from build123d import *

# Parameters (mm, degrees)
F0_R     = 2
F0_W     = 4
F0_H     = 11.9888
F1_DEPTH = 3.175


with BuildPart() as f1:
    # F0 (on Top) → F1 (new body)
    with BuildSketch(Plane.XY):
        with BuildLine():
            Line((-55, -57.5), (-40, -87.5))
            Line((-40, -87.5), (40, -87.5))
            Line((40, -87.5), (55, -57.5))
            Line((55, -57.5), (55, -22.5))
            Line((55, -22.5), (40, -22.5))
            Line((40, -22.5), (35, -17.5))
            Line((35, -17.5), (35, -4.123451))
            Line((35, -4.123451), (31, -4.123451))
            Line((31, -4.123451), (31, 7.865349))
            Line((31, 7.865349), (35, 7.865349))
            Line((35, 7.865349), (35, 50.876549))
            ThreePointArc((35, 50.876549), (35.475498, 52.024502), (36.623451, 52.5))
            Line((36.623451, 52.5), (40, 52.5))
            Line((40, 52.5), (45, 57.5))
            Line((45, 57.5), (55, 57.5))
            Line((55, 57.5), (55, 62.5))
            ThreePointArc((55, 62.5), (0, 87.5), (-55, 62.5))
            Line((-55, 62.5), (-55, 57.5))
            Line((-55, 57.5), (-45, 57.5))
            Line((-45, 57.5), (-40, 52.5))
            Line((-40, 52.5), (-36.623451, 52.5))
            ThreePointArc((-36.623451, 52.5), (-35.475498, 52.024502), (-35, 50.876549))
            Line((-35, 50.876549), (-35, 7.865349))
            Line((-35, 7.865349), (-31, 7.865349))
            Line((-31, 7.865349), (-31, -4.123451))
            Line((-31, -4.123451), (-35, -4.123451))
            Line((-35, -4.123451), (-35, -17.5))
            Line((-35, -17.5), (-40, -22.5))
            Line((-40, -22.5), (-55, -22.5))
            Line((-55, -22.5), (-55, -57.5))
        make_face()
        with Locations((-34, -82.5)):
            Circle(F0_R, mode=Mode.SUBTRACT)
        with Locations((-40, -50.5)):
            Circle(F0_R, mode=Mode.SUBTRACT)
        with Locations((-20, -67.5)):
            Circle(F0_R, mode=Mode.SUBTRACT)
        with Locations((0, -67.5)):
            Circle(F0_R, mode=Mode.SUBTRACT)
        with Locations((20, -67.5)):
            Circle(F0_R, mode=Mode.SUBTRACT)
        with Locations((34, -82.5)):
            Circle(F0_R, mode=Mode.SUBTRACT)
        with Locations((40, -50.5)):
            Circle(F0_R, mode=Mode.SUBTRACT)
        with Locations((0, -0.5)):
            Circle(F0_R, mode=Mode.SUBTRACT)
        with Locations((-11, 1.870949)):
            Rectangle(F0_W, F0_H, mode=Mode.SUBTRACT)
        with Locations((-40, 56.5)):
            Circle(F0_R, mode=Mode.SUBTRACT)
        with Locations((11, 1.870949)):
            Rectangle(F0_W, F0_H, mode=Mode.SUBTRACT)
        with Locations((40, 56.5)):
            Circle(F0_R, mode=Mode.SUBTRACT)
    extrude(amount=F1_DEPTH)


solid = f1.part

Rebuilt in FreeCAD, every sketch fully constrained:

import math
import FreeCAD as App
import Part
import Sketcher
from FreeCAD import Vector
Q = App.Units.Quantity

doc = App.newDocument("Part")
body = doc.addObject("PartDesign::Body", "Body")

sketch1 = body.newObject("Sketcher::SketchObject", "Sketch")
sketch1.AttachmentSupport = (doc.getObject("XY_Plane"), [""])
sketch1.MapMode = "FlatFace"
sketch1.addGeometry(Part.LineSegment(Vector(-55, -57.5, 0), Vector(-40, -87.5, 0)), False)
sketch1.addGeometry(Part.LineSegment(Vector(-40, -87.5, 0), Vector(40, -87.5, 0)), False)
sketch1.addGeometry(Part.LineSegment(Vector(40, -87.5, 0), Vector(55, -57.5, 0)), False)
sketch1.addGeometry(Part.LineSegment(Vector(55, -57.5, 0), Vector(55, -22.5, 0)), False)
sketch1.addGeometry(Part.LineSegment(Vector(55, -22.5, 0), Vector(40, -22.5, 0)), False)
sketch1.addGeometry(Part.LineSegment(Vector(40, -22.5, 0), Vector(35, -17.5, 0)), False)
sketch1.addGeometry(Part.LineSegment(Vector(35, -17.5, 0), Vector(35, -4.123451, 0)), False)
sketch1.addGeometry(Part.LineSegment(Vector(35, -4.123451, 0), Vector(31, -4.123451, 0)), False)
sketch1.addGeometry(Part.LineSegment(Vector(31, -4.123451, 0), Vector(31, 7.865349, 0)), False)
sketch1.addGeometry(Part.LineSegment(Vector(31, 7.865349, 0), Vector(35, 7.865349, 0)), False)
sketch1.addGeometry(Part.LineSegment(Vector(35, 7.865349, 0), Vector(35, 50.876549, 0)), False)
sketch1.addGeometry(Part.ArcOfCircle(Part.Circle(Vector(36.623452, 50.876548, 0), Vector(0, 0, 1), 1.623452), math.radians(90.000025), math.radians(179.999975)), False)
sketch1.addGeometry(Part.LineSegment(Vector(36.623451, 52.5, 0), Vector(40, 52.5, 0)), False)
sketch1.addGeometry(Part.LineSegment(Vector(40, 52.5, 0), Vector(45, 57.5, 0)), False)
sketch1.addGeometry(Part.LineSegment(Vector(45, 57.5, 0), Vector(55, 57.5, 0)), False)
sketch1.addGeometry(Part.LineSegment(Vector(55, 57.5, 0), Vector(55, 62.5, 0)), False)
sketch1.addGeometry(Part.ArcOfCircle(Part.Circle(Vector(0, 14.5, 0), Vector(0, 0, 1), 73), math.radians(41.11209), math.radians(138.88791)), False)
sketch1.addGeometry(Part.LineSegment(Vector(-55, 62.5, 0), Vector(-55, 57.5, 0)), False)
sketch1.addGeometry(Part.LineSegment(Vector(-55, 57.5, 0), Vector(-45, 57.5, 0)), False)
sketch1.addGeometry(Part.LineSegment(Vector(-45, 57.5, 0), Vector(-40, 52.5, 0)), False)
sketch1.addGeometry(Part.LineSegment(Vector(-40, 52.5, 0), Vector(-36.623451, 52.5, 0)), False)
sketch1.addGeometry(Part.ArcOfCircle(Part.Circle(Vector(-36.623452, 50.876548, 0), Vector(0, 0, 1), 1.623452), math.radians(0.000025), math.radians(89.999975)), False)
sketch1.addGeometry(Part.LineSegment(Vector(-35, 50.876549, 0), Vector(-35, 7.865349, 0)), False)
sketch1.addGeometry(Part.LineSegment(Vector(-35, 7.865349, 0), Vector(-31, 7.865349, 0)), False)
sketch1.addGeometry(Part.LineSegment(Vector(-31, 7.865349, 0), Vector(-31, -4.123451, 0)), False)
sketch1.addGeometry(Part.LineSegment(Vector(-31, -4.123451, 0), Vector(-35, -4.123451, 0)), False)
sketch1.addGeometry(Part.LineSegment(Vector(-35, -4.123451, 0), Vector(-35, -17.5, 0)), False)
sketch1.addGeometry(Part.LineSegment(Vector(-35, -17.5, 0), Vector(-40, -22.5, 0)), False)
sketch1.addGeometry(Part.LineSegment(Vector(-40, -22.5, 0), Vector(-55, -22.5, 0)), False)
sketch1.addGeometry(Part.LineSegment(Vector(-55, -22.5, 0), Vector(-55, -57.5, 0)), False)
sketch1.addGeometry(Part.Circle(Vector(-34, -82.5, 0), Vector(0, 0, 1), 2), False)
sketch1.addGeometry(Part.Circle(Vector(-40, -50.5, 0), Vector(0, 0, 1), 2), False)
sketch1.addGeometry(Part.Circle(Vector(-20, -67.5, 0), Vector(0, 0, 1), 2), False)
sketch1.addGeometry(Part.Circle(Vector(0, -67.5, 0), Vector(0, 0, 1), 2), False)
sketch1.addGeometry(Part.Circle(Vector(20, -67.5, 0), Vector(0, 0, 1), 2), False)
sketch1.addGeometry(Part.Circle(Vector(34, -82.5, 0), Vector(0, 0, 1), 2), False)
sketch1.addGeometry(Part.Circle(Vector(40, -50.5, 0), Vector(0, 0, 1), 2), False)
sketch1.addGeometry(Part.LineSegment(Vector(-9, -4.123451, 0), Vector(-13, -4.123451, 0)), False)
sketch1.addGeometry(Part.LineSegment(Vector(-13, -4.123451, 0), Vector(-13, 7.865349, 0)), False)
sketch1.addGeometry(Part.LineSegment(Vector(-13, 7.865349, 0), Vector(-9, 7.865349, 0)), False)
sketch1.addGeometry(Part.LineSegment(Vector(-9, 7.865349, 0), Vector(-9, -4.123451, 0)), False)
sketch1.addGeometry(Part.Circle(Vector(-40, 56.5, 0), Vector(0, 0, 1), 2), False)
sketch1.addGeometry(Part.Circle(Vector(0, -0.5, 0), Vector(0, 0, 1), 2), False)
sketch1.addGeometry(Part.LineSegment(Vector(13, -4.123451, 0), Vector(9, -4.123451, 0)), False)
sketch1.addGeometry(Part.LineSegment(Vector(9, -4.123451, 0), Vector(9, 7.865349, 0)), False)
sketch1.addGeometry(Part.LineSegment(Vector(9, 7.865349, 0), Vector(13, 7.865349, 0)), False)
sketch1.addGeometry(Part.LineSegment(Vector(13, 7.865349, 0), Vector(13, -4.123451, 0)), False)
sketch1.addGeometry(Part.Circle(Vector(40, 56.5, 0), Vector(0, 0, 1), 2), False)
sketch1.addConstraint(Sketcher.Constraint("Coincident", 0, 2, 1, 1))
sketch1.addConstraint(Sketcher.Constraint("Coincident", 1, 2, 2, 1))
sketch1.addConstraint(Sketcher.Constraint("Coincident", 2, 2, 3, 1))
sketch1.addConstraint(Sketcher.Constraint("Coincident", 3, 2, 4, 1))
sketch1.addConstraint(Sketcher.Constraint("Coincident", 4, 2, 5, 1))
sketch1.addConstraint(Sketcher.Constraint("Coincident", 5, 2, 6, 1))
sketch1.addConstraint(Sketcher.Constraint("Coincident", 6, 2, 7, 1))
sketch1.addConstraint(Sketcher.Constraint("Coincident", 7, 2, 8, 1))
sketch1.addConstraint(Sketcher.Constraint("Coincident", 8, 2, 9, 1))
sketch1.addConstraint(Sketcher.Constraint("Coincident", 9, 2, 10, 1))
sketch1.addConstraint(Sketcher.Constraint("Tangent", 10, 2, 11, 2))
sketch1.addConstraint(Sketcher.Constraint("Tangent", 11, 1, 12, 1))
sketch1.addConstraint(Sketcher.Constraint("Coincident", 12, 2, 13, 1))
sketch1.addConstraint(Sketcher.Constraint("Coincident", 13, 2, 14, 1))
sketch1.addConstraint(Sketcher.Constraint("Coincident", 14, 2, 15, 1))
sketch1.addConstraint(Sketcher.Constraint("Coincident", 15, 2, 16, 1))
sketch1.addConstraint(Sketcher.Constraint("Coincident", 16, 2, 17, 1))
sketch1.addConstraint(Sketcher.Constraint("Coincident", 17, 2, 18, 1))
sketch1.addConstraint(Sketcher.Constraint("Coincident", 18, 2, 19, 1))
sketch1.addConstraint(Sketcher.Constraint("Coincident", 19, 2, 20, 1))
sketch1.addConstraint(Sketcher.Constraint("Tangent", 20, 2, 21, 2))
sketch1.addConstraint(Sketcher.Constraint("Tangent", 21, 1, 22, 1))
sketch1.addConstraint(Sketcher.Constraint("Coincident", 22, 2, 23, 1))
sketch1.addConstraint(Sketcher.Constraint("Coincident", 23, 2, 24, 1))
sketch1.addConstraint(Sketcher.Constraint("Coincident", 24, 2, 25, 1))
sketch1.addConstraint(Sketcher.Constraint("Coincident", 25, 2, 26, 1))
sketch1.addConstraint(Sketcher.Constraint("Coincident", 26, 2, 27, 1))
sketch1.addConstraint(Sketcher.Constraint("Coincident", 27, 2, 28, 1))
sketch1.addConstraint(Sketcher.Constraint("Coincident", 28, 2, 29, 1))
sketch1.addConstraint(Sketcher.Constraint("Coincident", 29, 2, 0, 1))
sketch1.addConstraint(Sketcher.Constraint("Coincident", 37, 2, 38, 1))
sketch1.addConstraint(Sketcher.Constraint("Coincident", 38, 2, 39, 1))
sketch1.addConstraint(Sketcher.Constraint("Coincident", 39, 2, 40, 1))
sketch1.addConstraint(Sketcher.Constraint("Coincident", 40, 2, 37, 1))
sketch1.addConstraint(Sketcher.Constraint("Coincident", 43, 2, 44, 1))
sketch1.addConstraint(Sketcher.Constraint("Coincident", 44, 2, 45, 1))
sketch1.addConstraint(Sketcher.Constraint("Coincident", 45, 2, 46, 1))
sketch1.addConstraint(Sketcher.Constraint("Coincident", 46, 2, 43, 1))
sketch1.addConstraint(Sketcher.Constraint("Horizontal", 1))
sketch1.addConstraint(Sketcher.Constraint("Vertical", 3))
sketch1.addConstraint(Sketcher.Constraint("Horizontal", 4))
sketch1.addConstraint(Sketcher.Constraint("Vertical", 6))
sketch1.addConstraint(Sketcher.Constraint("Horizontal", 7))
sketch1.addConstraint(Sketcher.Constraint("Vertical", 8))
sketch1.addConstraint(Sketcher.Constraint("Horizontal", 9))
sketch1.addConstraint(Sketcher.Constraint("Vertical", 10))
sketch1.addConstraint(Sketcher.Constraint("Horizontal", 12))
sketch1.addConstraint(Sketcher.Constraint("Horizontal", 14))
sketch1.addConstraint(Sketcher.Constraint("Vertical", 15))
sketch1.addConstraint(Sketcher.Constraint("Vertical", 17))
sketch1.addConstraint(Sketcher.Constraint("Horizontal", 18))
sketch1.addConstraint(Sketcher.Constraint("Horizontal", 20))
sketch1.addConstraint(Sketcher.Constraint("Vertical", 22))
sketch1.addConstraint(Sketcher.Constraint("Horizontal", 23))
sketch1.addConstraint(Sketcher.Constraint("Vertical", 24))
sketch1.addConstraint(Sketcher.Constraint("Horizontal", 25))
sketch1.addConstraint(Sketcher.Constraint("Vertical", 26))
sketch1.addConstraint(Sketcher.Constraint("Horizontal", 28))
sketch1.addConstraint(Sketcher.Constraint("Vertical", 29))
sketch1.addConstraint(Sketcher.Constraint("Horizontal", 37))
sketch1.addConstraint(Sketcher.Constraint("Vertical", 38))
sketch1.addConstraint(Sketcher.Constraint("Horizontal", 39))
sketch1.addConstraint(Sketcher.Constraint("Vertical", 40))
sketch1.addConstraint(Sketcher.Constraint("Horizontal", 43))
sketch1.addConstraint(Sketcher.Constraint("Vertical", 44))
sketch1.addConstraint(Sketcher.Constraint("Horizontal", 45))
sketch1.addConstraint(Sketcher.Constraint("Vertical", 46))
sketch1.addConstraint(Sketcher.Constraint("Equal", 11, 21))
sketch1.addConstraint(Sketcher.Constraint("Equal", 30, 31))
sketch1.addConstraint(Sketcher.Constraint("Equal", 31, 32))
sketch1.addConstraint(Sketcher.Constraint("Equal", 32, 33))
sketch1.addConstraint(Sketcher.Constraint("Equal", 33, 34))
sketch1.addConstraint(Sketcher.Constraint("Equal", 34, 35))
sketch1.addConstraint(Sketcher.Constraint("Equal", 35, 36))
sketch1.addConstraint(Sketcher.Constraint("Equal", 36, 41))
sketch1.addConstraint(Sketcher.Constraint("Equal", 41, 42))
sketch1.addConstraint(Sketcher.Constraint("Equal", 42, 47))
sketch1.addConstraint(Sketcher.Constraint("Symmetric", 2, 2, 17, 2, -1, 1))
sketch1.addConstraint(Sketcher.Constraint("Symmetric", 14, 2, 29, 2, -1, 1))
sketch1.addConstraint(Sketcher.Constraint("Symmetric", 11, 3, 21, 3, -2))
sketch1.addConstraint(Sketcher.Constraint("Symmetric", 32, 3, 34, 3, -2))
sketch1.addConstraint(Sketcher.Constraint("Symmetric", 30, 3, 35, 3, -2))
sketch1.addConstraint(Sketcher.Constraint("Symmetric", 31, 3, 36, 3, -2))
sketch1.addConstraint(Sketcher.Constraint("Symmetric", 41, 3, 47, 3, -2))
sketch1.addConstraint(Sketcher.Constraint("Symmetric", 15, 2, 16, 2, -2))
sketch1.addConstraint(Sketcher.Constraint("Symmetric", 13, 2, 18, 2, -2))
sketch1.addConstraint(Sketcher.Constraint("Symmetric", 8, 2, 23, 2, -2))
sketch1.addConstraint(Sketcher.Constraint("Symmetric", 6, 2, 25, 2, -2))
sketch1.addConstraint(Sketcher.Constraint("Symmetric", 4, 2, 27, 2, -2))
sketch1.addConstraint(Sketcher.Constraint("Symmetric", 40, 2, 43, 2, -2))
sketch1.addConstraint(Sketcher.Constraint("Symmetric", 38, 2, 45, 2, -2))
sketch1.addConstraint(Sketcher.Constraint("PointOnObject", 33, 3, -2))
sketch1.addConstraint(Sketcher.Constraint("PointOnObject", 42, 3, -2))
sketch1.addConstraint(Sketcher.Constraint("Perpendicular", 5, 13))
sketch1.addConstraint(Sketcher.Constraint("Perpendicular", 13, 19))
sketch1.addConstraint(Sketcher.Constraint("Perpendicular", 19, 27))
sketch1.addConstraint(Sketcher.Constraint("Horizontal", 32, 3, 33, 3))
sketch1.addConstraint(Sketcher.Constraint("Horizontal", 5, 2, 26, 2))
sketch1.addConstraint(Sketcher.Constraint("Horizontal", 25, 2, 37, 2))
sketch1.addConstraint(Sketcher.Constraint("Horizontal", 23, 2, 38, 2))
sketch1.addConstraint(Sketcher.Constraint("Vertical", 31, 3, 41, 3))
sketch1.addConstraint(Sketcher.Constraint("Vertical", 41, 3, 0, 2))
sketch1.addConstraint(Sketcher.Constraint("Vertical", 47, 3, 1, 2))
sketch1.addConstraint(Sketcher.Constraint("Vertical", 1, 2, 4, 2))
sketch1.addConstraint(Sketcher.Constraint("Vertical", 6, 2, 9, 2))
sketch1.addConstraint(Sketcher.Constraint("Vertical", 4, 2, 12, 2))
sketch1.addConstraint(Sketcher.Constraint("Equal", 25, 37))
sketch1.addConstraint(Sketcher.Constraint("Equal", 5, 13))
sketch1.addConstraint(Sketcher.Constraint("Diameter", 30, Q("4 mm")))
sketch1.addConstraint(Sketcher.Constraint("Radius", 16, Q("73 mm")))
sketch1.addConstraint(Sketcher.Constraint("DistanceX", 1, 1, 1, 2, Q("80 mm")))
sketch1.addConstraint(Sketcher.Constraint("DistanceX", 4, 2, 4, 1, Q("15 mm")))
sketch1.addConstraint(Sketcher.Constraint("DistanceX", 7, 2, 7, 1, Q("4 mm")))
sketch1.addConstraint(Sketcher.Constraint("DistanceX", 14, 1, 14, 2, Q("10 mm")))
sketch1.addConstraint(Sketcher.Constraint("DistanceY", 3, 1, 3, 2, Q("35 mm")))
sketch1.addConstraint(Sketcher.Constraint("DistanceY", 15, 1, 15, 2, Q("5 mm")))
sketch1.addConstraint(Sketcher.Constraint("DistanceX", 30, 3, -1, 1, Q("34 mm")))
sketch1.addConstraint(Sketcher.Constraint("DistanceX", 32, 3, -1, 1, Q("20 mm")))
sketch1.addConstraint(Sketcher.Constraint("DistanceX", 37, 2, -1, 1, Q("13 mm")))
sketch1.addConstraint(Sketcher.Constraint("DistanceY", 30, 3, 16, 3, Q("97 mm")))
sketch1.addConstraint(Sketcher.Constraint("DistanceY", 30, 3, 31, 3, Q("32 mm")))
sketch1.addConstraint(Sketcher.Constraint("DistanceY", 30, 3, 32, 3, Q("15 mm")))
sketch1.addConstraint(Sketcher.Constraint("DistanceY", 16, 3, 41, 3, Q("42 mm")))
sketch1.addConstraint(Sketcher.Constraint("DistanceY", 42, 3, 16, 3, Q("15 mm")))
sketch1.addConstraint(Sketcher.Constraint("DistanceY", 0, 2, 30, 3, Q("5 mm")))
sketch1.addConstraint(Sketcher.Constraint("DistanceY", 2, 2, 36, 3, Q("7 mm")))
sketch1.addConstraint(Sketcher.Constraint("Radius", 11, Q("1.623452 mm")))
sketch1.addConstraint(Sketcher.Constraint("DistanceY", 8, 1, 8, 2, Q("11.9888 mm")))
sketch1.addConstraint(Sketcher.Constraint("DistanceY", 10, 1, 10, 2, Q("43.0112 mm")))
pad1 = body.newObject("PartDesign::Pad", "Pad")
pad1.Profile = sketch1
pad1.Length = 3.175

doc.recompute()
